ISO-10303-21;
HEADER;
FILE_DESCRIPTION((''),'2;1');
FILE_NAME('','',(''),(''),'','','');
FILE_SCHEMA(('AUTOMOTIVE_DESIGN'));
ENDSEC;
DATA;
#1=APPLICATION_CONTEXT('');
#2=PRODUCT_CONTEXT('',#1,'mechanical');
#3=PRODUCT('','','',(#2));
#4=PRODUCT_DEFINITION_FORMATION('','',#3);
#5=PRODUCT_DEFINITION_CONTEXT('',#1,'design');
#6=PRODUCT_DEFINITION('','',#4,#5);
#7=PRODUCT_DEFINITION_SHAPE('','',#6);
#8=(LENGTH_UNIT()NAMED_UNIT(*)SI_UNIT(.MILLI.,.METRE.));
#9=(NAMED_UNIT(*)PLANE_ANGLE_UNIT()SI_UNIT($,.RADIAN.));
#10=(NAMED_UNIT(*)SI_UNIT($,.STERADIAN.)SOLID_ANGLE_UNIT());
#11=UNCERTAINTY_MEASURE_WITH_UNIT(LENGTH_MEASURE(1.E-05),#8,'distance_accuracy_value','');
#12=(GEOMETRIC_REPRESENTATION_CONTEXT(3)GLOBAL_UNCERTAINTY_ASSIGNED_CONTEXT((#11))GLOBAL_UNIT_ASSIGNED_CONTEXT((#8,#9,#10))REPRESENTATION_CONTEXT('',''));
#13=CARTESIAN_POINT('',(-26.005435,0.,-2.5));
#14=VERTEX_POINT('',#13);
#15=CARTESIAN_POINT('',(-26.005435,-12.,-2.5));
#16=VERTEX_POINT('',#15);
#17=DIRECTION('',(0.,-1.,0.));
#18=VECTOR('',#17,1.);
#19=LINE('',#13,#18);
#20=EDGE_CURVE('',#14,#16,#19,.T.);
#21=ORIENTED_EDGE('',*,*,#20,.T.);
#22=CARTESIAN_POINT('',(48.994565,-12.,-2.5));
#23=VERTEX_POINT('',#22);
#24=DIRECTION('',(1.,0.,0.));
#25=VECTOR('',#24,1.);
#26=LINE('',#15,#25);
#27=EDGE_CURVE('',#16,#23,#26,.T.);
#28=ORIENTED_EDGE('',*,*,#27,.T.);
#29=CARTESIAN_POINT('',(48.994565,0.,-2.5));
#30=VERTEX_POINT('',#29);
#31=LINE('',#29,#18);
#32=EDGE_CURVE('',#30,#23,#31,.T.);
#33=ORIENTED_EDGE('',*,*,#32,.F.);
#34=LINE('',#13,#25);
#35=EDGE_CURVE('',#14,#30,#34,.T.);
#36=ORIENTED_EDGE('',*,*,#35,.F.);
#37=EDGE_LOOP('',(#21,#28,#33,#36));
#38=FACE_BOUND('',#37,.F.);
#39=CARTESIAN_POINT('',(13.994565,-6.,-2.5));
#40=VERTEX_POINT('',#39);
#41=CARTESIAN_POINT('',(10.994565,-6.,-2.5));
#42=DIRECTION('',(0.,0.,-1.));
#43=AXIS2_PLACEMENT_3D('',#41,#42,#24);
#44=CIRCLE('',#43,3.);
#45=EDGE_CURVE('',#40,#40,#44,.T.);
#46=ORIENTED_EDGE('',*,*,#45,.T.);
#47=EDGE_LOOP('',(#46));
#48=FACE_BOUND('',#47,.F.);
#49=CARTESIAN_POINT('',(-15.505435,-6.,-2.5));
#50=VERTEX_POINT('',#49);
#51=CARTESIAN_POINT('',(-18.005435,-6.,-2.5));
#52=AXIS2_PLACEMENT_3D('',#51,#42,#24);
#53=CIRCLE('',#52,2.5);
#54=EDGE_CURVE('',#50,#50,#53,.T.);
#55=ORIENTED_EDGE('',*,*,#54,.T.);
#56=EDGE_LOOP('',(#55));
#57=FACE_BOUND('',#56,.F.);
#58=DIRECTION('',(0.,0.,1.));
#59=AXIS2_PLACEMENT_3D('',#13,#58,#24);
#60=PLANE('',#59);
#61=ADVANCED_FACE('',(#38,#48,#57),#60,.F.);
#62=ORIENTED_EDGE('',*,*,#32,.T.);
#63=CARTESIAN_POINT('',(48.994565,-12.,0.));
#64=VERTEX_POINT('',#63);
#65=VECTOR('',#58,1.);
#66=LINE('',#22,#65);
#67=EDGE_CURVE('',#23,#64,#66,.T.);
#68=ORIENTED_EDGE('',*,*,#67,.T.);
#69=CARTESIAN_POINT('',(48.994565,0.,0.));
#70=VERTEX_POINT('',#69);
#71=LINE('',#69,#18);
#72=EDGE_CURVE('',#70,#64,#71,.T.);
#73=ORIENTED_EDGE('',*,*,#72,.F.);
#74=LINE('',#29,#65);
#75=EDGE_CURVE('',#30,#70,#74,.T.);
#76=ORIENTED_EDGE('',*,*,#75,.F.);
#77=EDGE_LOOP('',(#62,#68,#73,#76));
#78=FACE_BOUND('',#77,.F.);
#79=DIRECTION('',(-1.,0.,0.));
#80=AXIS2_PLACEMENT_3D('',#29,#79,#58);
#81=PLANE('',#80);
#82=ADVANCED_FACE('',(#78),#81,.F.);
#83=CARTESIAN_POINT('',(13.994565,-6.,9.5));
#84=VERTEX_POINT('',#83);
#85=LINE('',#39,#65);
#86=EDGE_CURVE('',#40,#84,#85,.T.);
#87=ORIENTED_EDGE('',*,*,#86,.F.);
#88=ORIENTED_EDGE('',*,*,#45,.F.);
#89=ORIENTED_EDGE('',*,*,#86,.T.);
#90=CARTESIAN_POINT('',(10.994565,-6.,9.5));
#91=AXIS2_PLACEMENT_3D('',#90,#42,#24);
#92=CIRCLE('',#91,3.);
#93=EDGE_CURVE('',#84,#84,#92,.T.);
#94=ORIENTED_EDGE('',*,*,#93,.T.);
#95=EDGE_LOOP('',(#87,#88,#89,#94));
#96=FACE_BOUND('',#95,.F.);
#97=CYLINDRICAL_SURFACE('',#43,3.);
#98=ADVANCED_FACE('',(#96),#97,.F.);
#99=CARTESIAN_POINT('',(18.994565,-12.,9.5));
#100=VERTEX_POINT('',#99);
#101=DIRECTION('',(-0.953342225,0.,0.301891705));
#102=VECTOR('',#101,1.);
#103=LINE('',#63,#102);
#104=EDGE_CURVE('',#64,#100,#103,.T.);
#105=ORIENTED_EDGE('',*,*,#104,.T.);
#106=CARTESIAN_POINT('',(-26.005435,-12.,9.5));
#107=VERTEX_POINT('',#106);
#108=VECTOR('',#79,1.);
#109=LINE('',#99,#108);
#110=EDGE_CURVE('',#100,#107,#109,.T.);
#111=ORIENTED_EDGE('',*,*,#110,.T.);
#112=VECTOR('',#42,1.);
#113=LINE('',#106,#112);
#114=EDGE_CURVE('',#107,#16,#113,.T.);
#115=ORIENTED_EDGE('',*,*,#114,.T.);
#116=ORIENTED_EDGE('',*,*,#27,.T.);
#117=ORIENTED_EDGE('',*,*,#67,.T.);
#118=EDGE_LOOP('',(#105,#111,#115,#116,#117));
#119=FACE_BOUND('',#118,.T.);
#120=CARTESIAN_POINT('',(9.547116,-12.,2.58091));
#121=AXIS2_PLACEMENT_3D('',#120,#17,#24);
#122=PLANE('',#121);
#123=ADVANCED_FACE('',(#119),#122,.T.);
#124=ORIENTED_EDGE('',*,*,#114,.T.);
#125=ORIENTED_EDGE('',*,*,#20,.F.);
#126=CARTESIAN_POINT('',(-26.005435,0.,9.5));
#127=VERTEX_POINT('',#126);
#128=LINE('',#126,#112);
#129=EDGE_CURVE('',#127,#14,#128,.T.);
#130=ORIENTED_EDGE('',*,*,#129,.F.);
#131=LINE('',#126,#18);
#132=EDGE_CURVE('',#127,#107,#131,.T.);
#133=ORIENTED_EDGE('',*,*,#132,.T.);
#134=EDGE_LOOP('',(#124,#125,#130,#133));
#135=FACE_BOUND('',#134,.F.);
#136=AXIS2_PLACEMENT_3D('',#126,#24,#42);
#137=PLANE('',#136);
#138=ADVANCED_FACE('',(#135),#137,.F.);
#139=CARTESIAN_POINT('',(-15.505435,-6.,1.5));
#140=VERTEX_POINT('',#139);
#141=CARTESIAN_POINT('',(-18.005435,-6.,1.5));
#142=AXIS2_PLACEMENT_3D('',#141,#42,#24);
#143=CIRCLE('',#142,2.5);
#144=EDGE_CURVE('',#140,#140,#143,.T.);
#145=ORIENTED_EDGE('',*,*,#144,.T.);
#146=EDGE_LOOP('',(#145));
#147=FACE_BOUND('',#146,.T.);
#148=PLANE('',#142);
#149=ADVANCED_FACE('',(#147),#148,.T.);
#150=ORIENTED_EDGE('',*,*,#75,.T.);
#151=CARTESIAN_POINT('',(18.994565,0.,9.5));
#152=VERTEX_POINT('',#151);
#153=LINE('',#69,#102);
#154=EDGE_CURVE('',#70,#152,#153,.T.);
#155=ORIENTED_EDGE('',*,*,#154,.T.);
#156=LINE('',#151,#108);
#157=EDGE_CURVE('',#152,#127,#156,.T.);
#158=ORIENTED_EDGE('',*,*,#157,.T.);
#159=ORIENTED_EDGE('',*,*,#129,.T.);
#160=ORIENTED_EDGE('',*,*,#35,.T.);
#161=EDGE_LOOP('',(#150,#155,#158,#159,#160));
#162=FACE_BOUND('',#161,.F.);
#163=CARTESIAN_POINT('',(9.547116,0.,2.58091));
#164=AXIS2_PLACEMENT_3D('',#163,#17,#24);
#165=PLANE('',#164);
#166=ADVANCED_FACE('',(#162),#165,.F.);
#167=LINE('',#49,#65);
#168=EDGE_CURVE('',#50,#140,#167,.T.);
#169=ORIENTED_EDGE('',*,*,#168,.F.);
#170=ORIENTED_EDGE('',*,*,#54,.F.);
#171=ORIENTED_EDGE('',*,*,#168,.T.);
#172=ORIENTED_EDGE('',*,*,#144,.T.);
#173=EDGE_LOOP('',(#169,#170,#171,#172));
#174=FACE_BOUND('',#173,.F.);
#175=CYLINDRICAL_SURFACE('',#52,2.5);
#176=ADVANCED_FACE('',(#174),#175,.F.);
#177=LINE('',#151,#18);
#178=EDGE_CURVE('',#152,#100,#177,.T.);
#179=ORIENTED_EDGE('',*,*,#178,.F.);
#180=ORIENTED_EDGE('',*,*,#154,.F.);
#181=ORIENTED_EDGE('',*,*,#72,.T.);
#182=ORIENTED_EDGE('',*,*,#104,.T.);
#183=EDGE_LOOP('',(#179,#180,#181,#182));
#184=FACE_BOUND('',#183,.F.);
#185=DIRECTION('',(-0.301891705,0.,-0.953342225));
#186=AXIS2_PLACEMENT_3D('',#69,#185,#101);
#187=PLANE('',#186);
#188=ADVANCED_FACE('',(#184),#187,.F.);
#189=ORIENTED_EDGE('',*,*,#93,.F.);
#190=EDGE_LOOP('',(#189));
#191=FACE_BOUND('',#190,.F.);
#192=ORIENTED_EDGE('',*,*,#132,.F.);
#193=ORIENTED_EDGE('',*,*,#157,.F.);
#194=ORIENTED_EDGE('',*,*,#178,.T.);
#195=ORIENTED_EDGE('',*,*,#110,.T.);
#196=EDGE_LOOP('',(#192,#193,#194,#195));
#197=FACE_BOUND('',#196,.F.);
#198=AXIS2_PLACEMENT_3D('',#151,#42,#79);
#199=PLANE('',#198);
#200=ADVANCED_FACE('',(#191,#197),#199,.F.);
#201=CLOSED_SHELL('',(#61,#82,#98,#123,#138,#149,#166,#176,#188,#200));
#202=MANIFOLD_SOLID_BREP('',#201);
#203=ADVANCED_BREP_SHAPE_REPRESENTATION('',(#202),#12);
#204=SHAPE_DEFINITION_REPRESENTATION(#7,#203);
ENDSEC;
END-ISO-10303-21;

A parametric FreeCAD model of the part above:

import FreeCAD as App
import Part
import Sketcher
from FreeCAD import Vector
Q = App.Units.Quantity

doc = App.newDocument("Part")
body = doc.addObject("PartDesign::Body", "Body")

sketch1 = body.newObject("Sketcher::SketchObject", "Sketch")
sketch1.AttachmentSupport = (doc.getObject("XZ_Plane"), [""])
sketch1.MapMode = "FlatFace"
sketch1.addGeometry([
    Part.LineSegment(Vector(19, 9.5, 0), Vector(-26, 9.5, 0)),
    Part.LineSegment(Vector(-26, 9.5, 0), Vector(-26, -2.5, 0)),
    Part.LineSegment(Vector(-26, -2.5, 0), Vector(49, -2.5, 0)),
    Part.LineSegment(Vector(49, -2.5, 0), Vector(49, 0, 0)),
    Part.LineSegment(Vector(49, 0, 0), Vector(19, 9.5, 0)),
], False)
sketch1.addConstraint([
    Sketcher.Constraint("Coincident", 0, 2, 1, 1),
    Sketcher.Constraint("Coincident", 1, 2, 2, 1),
    Sketcher.Constraint("Coincident", 2, 2, 3, 1),
    Sketcher.Constraint("Coincident", 3, 2, 4, 1),
    Sketcher.Constraint("Coincident", 4, 2, 0, 1),
    Sketcher.Constraint("Horizontal", 0),
    Sketcher.Constraint("Vertical", 1),
    Sketcher.Constraint("Horizontal", 2),
    Sketcher.Constraint("Vertical", 3),
    Sketcher.Constraint("PointOnObject", 3, 2, -1),
    Sketcher.Constraint("DistanceX", 0, 2, 0, 1, Q("45 mm")),
    Sketcher.Constraint("DistanceX", 2, 1, 2, 2, Q("75 mm")),
    Sketcher.Constraint("DistanceY", 1, 2, 1, 1, Q("12 mm")),
    Sketcher.Constraint("DistanceY", 3, 1, 3, 2, Q("2.5 mm")),
    Sketcher.Constraint("DistanceX", 0, 2, -1, 1, Q("26.005435 mm")),
])
pad1 = body.newObject("PartDesign::Pad", "Pad")
pad1.Profile = sketch1
pad1.Length = 12

sketch2 = body.newObject("Sketcher::SketchObject", "Sketch001")
sketch2.AttachmentSupport = (doc.getObject("XY_Plane"), [""])
sketch2.MapMode = "FlatFace"
sketch2.AttachmentOffset = App.Placement(Vector(0, 0, -2.5), App.Rotation())
sketch2.addGeometry(Part.Circle(Vector(-18, -6, 0), Vector(0, 0, 1), 2.5), False)
sketch2.addConstraint([
    Sketcher.Constraint("Diameter", 0, Q("5 mm")),
    Sketcher.Constraint("DistanceY", 0, 3, -1, 1, Q("6 mm")),
    Sketcher.Constraint("DistanceX", 0, 3, -1, 1, Q("18.005435 mm")),
])
pocket1 = body.newObject("PartDesign::Pocket", "Pocket")
pocket1.Profile = sketch2
pocket1.Length = 4
pocket1.Reversed = True

sketch3 = body.newObject("Sketcher::SketchObject", "Sketch002")
sketch3.AttachmentSupport = (doc.getObject("XY_Plane"), [""])
sketch3.MapMode = "FlatFace"
sketch3.AttachmentOffset = App.Placement(Vector(0, 0, -2.5), App.Rotation())
sketch3.addGeometry(Part.Circle(Vector(11, -6, 0), Vector(0, 0, 1), 3), False)
sketch3.addConstraint([
    Sketcher.Constraint("Diameter", 0, Q("6 mm")),
    Sketcher.Constraint("DistanceY", 0, 3, -1, 1, Q("6 mm")),
    Sketcher.Constraint("DistanceX", -1, 1, 0, 3, Q("10.994565 mm")),
])
pocket2 = body.newObject("PartDesign::Pocket", "Pocket001")
pocket2.Profile = sketch3
pocket2.Length = 12
pocket2.Reversed = True

doc.recompute()
